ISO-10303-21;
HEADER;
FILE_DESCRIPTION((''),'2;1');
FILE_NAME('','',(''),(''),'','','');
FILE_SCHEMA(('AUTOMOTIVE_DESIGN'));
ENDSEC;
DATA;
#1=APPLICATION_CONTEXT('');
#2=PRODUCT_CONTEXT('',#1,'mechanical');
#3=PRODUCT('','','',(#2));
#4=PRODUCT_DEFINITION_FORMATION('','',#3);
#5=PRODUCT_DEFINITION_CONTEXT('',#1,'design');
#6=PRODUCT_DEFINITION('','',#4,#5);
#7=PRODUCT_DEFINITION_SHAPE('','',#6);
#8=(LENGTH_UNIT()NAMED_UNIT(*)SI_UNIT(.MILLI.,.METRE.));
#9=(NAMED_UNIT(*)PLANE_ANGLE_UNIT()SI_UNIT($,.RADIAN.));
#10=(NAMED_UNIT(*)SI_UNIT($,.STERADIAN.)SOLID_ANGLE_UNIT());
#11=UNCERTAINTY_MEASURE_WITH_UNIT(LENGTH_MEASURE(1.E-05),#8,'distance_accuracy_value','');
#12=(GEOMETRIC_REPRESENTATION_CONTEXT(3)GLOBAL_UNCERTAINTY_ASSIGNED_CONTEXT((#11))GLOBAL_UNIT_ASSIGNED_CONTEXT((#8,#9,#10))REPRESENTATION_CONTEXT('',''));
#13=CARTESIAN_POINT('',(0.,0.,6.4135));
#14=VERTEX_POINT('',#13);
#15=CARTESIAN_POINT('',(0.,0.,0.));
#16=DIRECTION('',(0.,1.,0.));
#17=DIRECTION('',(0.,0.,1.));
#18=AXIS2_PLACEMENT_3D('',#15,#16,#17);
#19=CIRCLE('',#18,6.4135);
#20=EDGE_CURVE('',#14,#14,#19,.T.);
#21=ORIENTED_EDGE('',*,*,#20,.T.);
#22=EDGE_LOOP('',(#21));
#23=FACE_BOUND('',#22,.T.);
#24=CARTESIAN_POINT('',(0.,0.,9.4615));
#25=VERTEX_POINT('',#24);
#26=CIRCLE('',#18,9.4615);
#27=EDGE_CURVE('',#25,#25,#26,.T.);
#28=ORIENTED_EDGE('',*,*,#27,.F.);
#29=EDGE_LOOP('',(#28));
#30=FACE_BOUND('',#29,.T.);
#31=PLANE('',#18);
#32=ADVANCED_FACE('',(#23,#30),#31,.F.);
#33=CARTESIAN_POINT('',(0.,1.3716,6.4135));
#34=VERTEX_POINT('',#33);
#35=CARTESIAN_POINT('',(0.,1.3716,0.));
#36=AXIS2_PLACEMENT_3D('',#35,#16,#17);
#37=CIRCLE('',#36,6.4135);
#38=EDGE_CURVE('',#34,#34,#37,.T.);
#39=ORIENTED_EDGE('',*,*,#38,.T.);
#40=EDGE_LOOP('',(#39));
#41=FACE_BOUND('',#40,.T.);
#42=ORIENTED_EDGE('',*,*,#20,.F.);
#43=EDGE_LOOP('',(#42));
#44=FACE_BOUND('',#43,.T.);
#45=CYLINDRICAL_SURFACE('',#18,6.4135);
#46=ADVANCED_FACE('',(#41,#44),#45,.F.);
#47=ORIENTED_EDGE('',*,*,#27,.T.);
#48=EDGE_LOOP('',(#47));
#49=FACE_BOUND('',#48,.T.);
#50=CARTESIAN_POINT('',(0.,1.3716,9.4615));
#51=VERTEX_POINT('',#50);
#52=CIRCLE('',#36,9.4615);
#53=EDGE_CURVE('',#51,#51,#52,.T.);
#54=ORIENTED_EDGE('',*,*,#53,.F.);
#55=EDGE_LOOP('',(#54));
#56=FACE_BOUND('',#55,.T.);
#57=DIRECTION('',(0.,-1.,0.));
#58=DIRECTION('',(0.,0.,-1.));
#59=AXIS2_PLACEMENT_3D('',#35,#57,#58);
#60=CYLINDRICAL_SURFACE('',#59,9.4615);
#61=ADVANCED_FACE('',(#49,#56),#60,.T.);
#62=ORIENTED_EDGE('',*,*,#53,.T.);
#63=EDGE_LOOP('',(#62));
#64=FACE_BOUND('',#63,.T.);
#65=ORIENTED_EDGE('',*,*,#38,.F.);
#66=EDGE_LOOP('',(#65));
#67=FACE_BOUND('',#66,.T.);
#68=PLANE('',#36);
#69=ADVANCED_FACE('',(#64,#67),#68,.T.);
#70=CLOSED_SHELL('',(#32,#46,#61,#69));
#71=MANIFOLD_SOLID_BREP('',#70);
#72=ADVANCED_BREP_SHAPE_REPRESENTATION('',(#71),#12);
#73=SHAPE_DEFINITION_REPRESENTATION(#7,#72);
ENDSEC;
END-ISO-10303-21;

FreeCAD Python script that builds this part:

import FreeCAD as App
import Part
import Sketcher
from FreeCAD import Vector
Q = App.Units.Quantity

doc = App.newDocument("Part")
body = doc.addObject("PartDesign::Body", "Body")

sketch1 = body.newObject("Sketcher::SketchObject", "Sketch")
sketch1.AttachmentSupport = (doc.getObject("XZ_Plane"), [""])
sketch1.MapMode = "FlatFace"
sketch1.addGeometry(Part.Circle(Vector(0, 0, 0), Vector(0, 0, 1), 9), False)
sketch1.addConstraint(Sketcher.Constraint("Coincident", 0, 3, -1, 1))
sketch1.addConstraint(Sketcher.Constraint("Diameter", 0, Q("0.745 in")))
pad1 = body.newObject("PartDesign::Pad", "Pad")
pad1.Profile = sketch1
pad1.Length = Q("0.054 in")
pad1.Reversed = True

sketch2 = body.newObject("Sketcher::SketchObject", "Sketch001")
sketch2.AttachmentSupport = (doc.getObject("XZ_Plane"), [""])
sketch2.MapMode = "FlatFace"
sketch2.AttachmentOffset = App.Placement(Vector(0, 0, -0.054 * 25.4), App.Rotation())
sketch2.addGeometry(Part.Circle(Vector(0, 0, 0), Vector(0, 0, 1), 6), False)
sketch2.addConstraint(Sketcher.Constraint("Coincident", 0, 3, -1, 1))
sketch2.addConstraint(Sketcher.Constraint("Diameter", 0, Q("0.505 in")))
pocket1 = body.newObject("PartDesign::Pocket", "Pocket")
pocket1.Profile = sketch2
pocket1.Type = "ThroughAll"
pocket1.Reversed = True

doc.recompute()
